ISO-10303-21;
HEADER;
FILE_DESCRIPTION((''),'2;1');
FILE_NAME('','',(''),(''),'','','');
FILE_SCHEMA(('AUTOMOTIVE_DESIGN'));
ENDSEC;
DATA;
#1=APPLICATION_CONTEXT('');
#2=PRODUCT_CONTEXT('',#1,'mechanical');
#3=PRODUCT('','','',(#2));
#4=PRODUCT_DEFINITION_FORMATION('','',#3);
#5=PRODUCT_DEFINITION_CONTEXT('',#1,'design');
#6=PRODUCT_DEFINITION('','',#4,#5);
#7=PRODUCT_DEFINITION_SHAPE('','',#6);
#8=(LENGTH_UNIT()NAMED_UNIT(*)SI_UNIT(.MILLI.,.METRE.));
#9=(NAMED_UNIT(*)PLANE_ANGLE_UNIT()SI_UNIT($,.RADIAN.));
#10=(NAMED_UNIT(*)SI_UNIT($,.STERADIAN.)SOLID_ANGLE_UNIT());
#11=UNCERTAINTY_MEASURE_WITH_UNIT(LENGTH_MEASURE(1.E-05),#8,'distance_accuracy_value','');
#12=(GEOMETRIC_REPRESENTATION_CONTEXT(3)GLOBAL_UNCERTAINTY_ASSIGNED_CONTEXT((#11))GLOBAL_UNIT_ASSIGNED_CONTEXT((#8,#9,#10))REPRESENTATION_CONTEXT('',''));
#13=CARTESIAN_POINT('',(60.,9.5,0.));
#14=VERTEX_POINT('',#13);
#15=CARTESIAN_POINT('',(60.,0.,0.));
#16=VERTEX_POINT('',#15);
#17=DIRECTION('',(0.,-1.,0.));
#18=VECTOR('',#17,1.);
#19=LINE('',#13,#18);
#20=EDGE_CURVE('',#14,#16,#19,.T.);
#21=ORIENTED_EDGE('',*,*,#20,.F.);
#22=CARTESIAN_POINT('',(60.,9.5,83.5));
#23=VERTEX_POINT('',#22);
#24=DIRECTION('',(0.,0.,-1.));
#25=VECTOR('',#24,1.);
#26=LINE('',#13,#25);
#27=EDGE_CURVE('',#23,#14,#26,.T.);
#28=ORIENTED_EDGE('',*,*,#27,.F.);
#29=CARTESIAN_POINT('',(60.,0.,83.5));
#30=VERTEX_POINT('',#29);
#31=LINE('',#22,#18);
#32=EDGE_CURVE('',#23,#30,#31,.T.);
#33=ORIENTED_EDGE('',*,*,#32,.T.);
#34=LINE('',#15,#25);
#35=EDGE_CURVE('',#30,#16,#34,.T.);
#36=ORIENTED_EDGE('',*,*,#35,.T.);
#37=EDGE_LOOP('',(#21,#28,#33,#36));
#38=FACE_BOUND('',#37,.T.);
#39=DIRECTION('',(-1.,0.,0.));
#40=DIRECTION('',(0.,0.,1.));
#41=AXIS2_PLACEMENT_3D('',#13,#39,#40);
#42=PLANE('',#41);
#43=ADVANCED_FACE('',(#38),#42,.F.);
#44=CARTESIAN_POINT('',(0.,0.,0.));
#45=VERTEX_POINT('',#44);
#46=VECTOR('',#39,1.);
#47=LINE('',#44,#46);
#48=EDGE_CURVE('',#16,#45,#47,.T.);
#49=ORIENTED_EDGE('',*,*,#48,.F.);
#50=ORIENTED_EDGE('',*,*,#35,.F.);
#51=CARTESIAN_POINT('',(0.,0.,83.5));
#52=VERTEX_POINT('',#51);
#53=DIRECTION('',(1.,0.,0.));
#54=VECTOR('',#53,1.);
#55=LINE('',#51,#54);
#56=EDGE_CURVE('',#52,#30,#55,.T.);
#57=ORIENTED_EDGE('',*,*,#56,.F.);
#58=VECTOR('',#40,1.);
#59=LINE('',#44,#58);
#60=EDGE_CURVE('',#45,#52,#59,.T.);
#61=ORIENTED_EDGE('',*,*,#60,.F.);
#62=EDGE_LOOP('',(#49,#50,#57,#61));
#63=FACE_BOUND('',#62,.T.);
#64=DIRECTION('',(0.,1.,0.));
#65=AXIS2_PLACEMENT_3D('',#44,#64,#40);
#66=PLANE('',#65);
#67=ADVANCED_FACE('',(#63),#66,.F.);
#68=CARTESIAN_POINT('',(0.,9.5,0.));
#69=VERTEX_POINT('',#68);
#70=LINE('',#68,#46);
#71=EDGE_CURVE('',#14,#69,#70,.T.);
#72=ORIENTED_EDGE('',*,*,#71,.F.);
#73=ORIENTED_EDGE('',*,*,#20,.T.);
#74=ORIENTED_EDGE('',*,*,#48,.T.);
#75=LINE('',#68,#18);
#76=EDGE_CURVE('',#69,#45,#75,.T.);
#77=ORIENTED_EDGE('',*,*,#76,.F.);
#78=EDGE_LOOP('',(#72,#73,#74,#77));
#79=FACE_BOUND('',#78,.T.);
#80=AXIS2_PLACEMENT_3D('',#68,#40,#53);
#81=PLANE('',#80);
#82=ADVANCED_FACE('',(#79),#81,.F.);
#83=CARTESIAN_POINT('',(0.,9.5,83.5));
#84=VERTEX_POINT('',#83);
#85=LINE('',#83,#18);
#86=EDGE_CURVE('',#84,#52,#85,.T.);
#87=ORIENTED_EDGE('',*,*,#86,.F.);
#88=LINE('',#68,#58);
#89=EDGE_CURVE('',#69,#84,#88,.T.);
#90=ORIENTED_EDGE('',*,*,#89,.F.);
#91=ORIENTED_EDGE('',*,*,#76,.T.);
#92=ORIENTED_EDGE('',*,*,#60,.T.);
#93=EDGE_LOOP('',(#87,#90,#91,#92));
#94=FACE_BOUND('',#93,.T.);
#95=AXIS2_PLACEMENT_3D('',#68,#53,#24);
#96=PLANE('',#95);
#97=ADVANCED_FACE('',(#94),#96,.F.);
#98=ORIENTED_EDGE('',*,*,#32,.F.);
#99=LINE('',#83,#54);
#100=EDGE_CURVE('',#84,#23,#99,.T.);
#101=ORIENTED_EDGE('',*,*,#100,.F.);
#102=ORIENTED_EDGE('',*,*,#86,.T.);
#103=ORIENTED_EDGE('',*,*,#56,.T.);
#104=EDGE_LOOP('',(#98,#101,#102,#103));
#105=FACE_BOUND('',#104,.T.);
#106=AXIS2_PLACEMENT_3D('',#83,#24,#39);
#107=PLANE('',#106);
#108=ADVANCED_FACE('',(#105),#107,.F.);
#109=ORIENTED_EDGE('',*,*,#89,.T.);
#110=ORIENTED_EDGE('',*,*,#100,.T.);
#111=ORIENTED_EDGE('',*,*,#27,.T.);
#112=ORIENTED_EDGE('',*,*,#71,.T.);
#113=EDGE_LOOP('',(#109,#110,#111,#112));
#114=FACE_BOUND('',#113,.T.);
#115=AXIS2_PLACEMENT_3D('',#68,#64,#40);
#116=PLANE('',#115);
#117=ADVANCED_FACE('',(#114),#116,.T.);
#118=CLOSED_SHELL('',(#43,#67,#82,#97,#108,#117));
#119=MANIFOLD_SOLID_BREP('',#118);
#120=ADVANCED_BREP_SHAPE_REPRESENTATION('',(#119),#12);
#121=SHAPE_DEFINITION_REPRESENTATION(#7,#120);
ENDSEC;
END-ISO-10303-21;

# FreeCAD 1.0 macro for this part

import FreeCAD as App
import Part
import Sketcher

V = App.Vector


def add_polygon(sketch, points):
    """Adds a closed chain of lines whose ends are joined by coincident constraints."""
    first, n = sketch.GeometryCount, len(points)
    for a, b in zip(points, points[1:] + points[:1]):
        sketch.addGeometry(Part.LineSegment(App.Vector(*a, 0), App.Vector(*b, 0)), False)
    for i in range(n):
        sketch.addConstraint(Sketcher.Constraint("Coincident", first + i, 2, first + (i + 1) % n, 1))

doc = App.newDocument("Part")
params = doc.addObject("Spreadsheet::Sheet", "Params")
for row, (alias, value) in enumerate([
    ("sketch1_width", "60 mm"),
    ("sketch1_height", "83.5 mm"),
    ("pad1_length", "9.5 mm"),
], start=1):
    params.set(f"A{row}", alias)
    params.set(f"B{row}", "=" + value)
    params.setAlias(f"B{row}", alias)

body = doc.addObject("PartDesign::Body", "Body")

sketch1 = doc.addObject("Sketcher::SketchObject", "Sketch")
body.addObject(sketch1)
sketch1.AttachmentSupport = (doc.XZ_Plane, [""])
sketch1.MapMode = "FlatFace"
add_polygon(sketch1, [(0, 0), (0, 84), (60, 84), (60, 0)])
sketch1.addConstraint([
    Sketcher.Constraint("Vertical", 0),
    Sketcher.Constraint("Horizontal", 1),
    Sketcher.Constraint("Vertical", 2),
    Sketcher.Constraint("Horizontal", 3),
    Sketcher.Constraint("Coincident", 3, 2, -1, 1),
    Sketcher.Constraint("DistanceX", 1, 1, 1, 2, 60.0),
    Sketcher.Constraint("DistanceY", 0, 1, 0, 2, 83.5),
])
sketch1.setExpression("Constraints[9]", "Params.sketch1_width")
sketch1.setExpression("Constraints[10]", "Params.sketch1_height")
pad1 = doc.addObject("PartDesign::Pad", "Pad")
body.addObject(pad1)
pad1.Profile = sketch1
pad1.setExpression("Length", "Params.pad1_length")
pad1.Reversed = True

doc.recompute()
